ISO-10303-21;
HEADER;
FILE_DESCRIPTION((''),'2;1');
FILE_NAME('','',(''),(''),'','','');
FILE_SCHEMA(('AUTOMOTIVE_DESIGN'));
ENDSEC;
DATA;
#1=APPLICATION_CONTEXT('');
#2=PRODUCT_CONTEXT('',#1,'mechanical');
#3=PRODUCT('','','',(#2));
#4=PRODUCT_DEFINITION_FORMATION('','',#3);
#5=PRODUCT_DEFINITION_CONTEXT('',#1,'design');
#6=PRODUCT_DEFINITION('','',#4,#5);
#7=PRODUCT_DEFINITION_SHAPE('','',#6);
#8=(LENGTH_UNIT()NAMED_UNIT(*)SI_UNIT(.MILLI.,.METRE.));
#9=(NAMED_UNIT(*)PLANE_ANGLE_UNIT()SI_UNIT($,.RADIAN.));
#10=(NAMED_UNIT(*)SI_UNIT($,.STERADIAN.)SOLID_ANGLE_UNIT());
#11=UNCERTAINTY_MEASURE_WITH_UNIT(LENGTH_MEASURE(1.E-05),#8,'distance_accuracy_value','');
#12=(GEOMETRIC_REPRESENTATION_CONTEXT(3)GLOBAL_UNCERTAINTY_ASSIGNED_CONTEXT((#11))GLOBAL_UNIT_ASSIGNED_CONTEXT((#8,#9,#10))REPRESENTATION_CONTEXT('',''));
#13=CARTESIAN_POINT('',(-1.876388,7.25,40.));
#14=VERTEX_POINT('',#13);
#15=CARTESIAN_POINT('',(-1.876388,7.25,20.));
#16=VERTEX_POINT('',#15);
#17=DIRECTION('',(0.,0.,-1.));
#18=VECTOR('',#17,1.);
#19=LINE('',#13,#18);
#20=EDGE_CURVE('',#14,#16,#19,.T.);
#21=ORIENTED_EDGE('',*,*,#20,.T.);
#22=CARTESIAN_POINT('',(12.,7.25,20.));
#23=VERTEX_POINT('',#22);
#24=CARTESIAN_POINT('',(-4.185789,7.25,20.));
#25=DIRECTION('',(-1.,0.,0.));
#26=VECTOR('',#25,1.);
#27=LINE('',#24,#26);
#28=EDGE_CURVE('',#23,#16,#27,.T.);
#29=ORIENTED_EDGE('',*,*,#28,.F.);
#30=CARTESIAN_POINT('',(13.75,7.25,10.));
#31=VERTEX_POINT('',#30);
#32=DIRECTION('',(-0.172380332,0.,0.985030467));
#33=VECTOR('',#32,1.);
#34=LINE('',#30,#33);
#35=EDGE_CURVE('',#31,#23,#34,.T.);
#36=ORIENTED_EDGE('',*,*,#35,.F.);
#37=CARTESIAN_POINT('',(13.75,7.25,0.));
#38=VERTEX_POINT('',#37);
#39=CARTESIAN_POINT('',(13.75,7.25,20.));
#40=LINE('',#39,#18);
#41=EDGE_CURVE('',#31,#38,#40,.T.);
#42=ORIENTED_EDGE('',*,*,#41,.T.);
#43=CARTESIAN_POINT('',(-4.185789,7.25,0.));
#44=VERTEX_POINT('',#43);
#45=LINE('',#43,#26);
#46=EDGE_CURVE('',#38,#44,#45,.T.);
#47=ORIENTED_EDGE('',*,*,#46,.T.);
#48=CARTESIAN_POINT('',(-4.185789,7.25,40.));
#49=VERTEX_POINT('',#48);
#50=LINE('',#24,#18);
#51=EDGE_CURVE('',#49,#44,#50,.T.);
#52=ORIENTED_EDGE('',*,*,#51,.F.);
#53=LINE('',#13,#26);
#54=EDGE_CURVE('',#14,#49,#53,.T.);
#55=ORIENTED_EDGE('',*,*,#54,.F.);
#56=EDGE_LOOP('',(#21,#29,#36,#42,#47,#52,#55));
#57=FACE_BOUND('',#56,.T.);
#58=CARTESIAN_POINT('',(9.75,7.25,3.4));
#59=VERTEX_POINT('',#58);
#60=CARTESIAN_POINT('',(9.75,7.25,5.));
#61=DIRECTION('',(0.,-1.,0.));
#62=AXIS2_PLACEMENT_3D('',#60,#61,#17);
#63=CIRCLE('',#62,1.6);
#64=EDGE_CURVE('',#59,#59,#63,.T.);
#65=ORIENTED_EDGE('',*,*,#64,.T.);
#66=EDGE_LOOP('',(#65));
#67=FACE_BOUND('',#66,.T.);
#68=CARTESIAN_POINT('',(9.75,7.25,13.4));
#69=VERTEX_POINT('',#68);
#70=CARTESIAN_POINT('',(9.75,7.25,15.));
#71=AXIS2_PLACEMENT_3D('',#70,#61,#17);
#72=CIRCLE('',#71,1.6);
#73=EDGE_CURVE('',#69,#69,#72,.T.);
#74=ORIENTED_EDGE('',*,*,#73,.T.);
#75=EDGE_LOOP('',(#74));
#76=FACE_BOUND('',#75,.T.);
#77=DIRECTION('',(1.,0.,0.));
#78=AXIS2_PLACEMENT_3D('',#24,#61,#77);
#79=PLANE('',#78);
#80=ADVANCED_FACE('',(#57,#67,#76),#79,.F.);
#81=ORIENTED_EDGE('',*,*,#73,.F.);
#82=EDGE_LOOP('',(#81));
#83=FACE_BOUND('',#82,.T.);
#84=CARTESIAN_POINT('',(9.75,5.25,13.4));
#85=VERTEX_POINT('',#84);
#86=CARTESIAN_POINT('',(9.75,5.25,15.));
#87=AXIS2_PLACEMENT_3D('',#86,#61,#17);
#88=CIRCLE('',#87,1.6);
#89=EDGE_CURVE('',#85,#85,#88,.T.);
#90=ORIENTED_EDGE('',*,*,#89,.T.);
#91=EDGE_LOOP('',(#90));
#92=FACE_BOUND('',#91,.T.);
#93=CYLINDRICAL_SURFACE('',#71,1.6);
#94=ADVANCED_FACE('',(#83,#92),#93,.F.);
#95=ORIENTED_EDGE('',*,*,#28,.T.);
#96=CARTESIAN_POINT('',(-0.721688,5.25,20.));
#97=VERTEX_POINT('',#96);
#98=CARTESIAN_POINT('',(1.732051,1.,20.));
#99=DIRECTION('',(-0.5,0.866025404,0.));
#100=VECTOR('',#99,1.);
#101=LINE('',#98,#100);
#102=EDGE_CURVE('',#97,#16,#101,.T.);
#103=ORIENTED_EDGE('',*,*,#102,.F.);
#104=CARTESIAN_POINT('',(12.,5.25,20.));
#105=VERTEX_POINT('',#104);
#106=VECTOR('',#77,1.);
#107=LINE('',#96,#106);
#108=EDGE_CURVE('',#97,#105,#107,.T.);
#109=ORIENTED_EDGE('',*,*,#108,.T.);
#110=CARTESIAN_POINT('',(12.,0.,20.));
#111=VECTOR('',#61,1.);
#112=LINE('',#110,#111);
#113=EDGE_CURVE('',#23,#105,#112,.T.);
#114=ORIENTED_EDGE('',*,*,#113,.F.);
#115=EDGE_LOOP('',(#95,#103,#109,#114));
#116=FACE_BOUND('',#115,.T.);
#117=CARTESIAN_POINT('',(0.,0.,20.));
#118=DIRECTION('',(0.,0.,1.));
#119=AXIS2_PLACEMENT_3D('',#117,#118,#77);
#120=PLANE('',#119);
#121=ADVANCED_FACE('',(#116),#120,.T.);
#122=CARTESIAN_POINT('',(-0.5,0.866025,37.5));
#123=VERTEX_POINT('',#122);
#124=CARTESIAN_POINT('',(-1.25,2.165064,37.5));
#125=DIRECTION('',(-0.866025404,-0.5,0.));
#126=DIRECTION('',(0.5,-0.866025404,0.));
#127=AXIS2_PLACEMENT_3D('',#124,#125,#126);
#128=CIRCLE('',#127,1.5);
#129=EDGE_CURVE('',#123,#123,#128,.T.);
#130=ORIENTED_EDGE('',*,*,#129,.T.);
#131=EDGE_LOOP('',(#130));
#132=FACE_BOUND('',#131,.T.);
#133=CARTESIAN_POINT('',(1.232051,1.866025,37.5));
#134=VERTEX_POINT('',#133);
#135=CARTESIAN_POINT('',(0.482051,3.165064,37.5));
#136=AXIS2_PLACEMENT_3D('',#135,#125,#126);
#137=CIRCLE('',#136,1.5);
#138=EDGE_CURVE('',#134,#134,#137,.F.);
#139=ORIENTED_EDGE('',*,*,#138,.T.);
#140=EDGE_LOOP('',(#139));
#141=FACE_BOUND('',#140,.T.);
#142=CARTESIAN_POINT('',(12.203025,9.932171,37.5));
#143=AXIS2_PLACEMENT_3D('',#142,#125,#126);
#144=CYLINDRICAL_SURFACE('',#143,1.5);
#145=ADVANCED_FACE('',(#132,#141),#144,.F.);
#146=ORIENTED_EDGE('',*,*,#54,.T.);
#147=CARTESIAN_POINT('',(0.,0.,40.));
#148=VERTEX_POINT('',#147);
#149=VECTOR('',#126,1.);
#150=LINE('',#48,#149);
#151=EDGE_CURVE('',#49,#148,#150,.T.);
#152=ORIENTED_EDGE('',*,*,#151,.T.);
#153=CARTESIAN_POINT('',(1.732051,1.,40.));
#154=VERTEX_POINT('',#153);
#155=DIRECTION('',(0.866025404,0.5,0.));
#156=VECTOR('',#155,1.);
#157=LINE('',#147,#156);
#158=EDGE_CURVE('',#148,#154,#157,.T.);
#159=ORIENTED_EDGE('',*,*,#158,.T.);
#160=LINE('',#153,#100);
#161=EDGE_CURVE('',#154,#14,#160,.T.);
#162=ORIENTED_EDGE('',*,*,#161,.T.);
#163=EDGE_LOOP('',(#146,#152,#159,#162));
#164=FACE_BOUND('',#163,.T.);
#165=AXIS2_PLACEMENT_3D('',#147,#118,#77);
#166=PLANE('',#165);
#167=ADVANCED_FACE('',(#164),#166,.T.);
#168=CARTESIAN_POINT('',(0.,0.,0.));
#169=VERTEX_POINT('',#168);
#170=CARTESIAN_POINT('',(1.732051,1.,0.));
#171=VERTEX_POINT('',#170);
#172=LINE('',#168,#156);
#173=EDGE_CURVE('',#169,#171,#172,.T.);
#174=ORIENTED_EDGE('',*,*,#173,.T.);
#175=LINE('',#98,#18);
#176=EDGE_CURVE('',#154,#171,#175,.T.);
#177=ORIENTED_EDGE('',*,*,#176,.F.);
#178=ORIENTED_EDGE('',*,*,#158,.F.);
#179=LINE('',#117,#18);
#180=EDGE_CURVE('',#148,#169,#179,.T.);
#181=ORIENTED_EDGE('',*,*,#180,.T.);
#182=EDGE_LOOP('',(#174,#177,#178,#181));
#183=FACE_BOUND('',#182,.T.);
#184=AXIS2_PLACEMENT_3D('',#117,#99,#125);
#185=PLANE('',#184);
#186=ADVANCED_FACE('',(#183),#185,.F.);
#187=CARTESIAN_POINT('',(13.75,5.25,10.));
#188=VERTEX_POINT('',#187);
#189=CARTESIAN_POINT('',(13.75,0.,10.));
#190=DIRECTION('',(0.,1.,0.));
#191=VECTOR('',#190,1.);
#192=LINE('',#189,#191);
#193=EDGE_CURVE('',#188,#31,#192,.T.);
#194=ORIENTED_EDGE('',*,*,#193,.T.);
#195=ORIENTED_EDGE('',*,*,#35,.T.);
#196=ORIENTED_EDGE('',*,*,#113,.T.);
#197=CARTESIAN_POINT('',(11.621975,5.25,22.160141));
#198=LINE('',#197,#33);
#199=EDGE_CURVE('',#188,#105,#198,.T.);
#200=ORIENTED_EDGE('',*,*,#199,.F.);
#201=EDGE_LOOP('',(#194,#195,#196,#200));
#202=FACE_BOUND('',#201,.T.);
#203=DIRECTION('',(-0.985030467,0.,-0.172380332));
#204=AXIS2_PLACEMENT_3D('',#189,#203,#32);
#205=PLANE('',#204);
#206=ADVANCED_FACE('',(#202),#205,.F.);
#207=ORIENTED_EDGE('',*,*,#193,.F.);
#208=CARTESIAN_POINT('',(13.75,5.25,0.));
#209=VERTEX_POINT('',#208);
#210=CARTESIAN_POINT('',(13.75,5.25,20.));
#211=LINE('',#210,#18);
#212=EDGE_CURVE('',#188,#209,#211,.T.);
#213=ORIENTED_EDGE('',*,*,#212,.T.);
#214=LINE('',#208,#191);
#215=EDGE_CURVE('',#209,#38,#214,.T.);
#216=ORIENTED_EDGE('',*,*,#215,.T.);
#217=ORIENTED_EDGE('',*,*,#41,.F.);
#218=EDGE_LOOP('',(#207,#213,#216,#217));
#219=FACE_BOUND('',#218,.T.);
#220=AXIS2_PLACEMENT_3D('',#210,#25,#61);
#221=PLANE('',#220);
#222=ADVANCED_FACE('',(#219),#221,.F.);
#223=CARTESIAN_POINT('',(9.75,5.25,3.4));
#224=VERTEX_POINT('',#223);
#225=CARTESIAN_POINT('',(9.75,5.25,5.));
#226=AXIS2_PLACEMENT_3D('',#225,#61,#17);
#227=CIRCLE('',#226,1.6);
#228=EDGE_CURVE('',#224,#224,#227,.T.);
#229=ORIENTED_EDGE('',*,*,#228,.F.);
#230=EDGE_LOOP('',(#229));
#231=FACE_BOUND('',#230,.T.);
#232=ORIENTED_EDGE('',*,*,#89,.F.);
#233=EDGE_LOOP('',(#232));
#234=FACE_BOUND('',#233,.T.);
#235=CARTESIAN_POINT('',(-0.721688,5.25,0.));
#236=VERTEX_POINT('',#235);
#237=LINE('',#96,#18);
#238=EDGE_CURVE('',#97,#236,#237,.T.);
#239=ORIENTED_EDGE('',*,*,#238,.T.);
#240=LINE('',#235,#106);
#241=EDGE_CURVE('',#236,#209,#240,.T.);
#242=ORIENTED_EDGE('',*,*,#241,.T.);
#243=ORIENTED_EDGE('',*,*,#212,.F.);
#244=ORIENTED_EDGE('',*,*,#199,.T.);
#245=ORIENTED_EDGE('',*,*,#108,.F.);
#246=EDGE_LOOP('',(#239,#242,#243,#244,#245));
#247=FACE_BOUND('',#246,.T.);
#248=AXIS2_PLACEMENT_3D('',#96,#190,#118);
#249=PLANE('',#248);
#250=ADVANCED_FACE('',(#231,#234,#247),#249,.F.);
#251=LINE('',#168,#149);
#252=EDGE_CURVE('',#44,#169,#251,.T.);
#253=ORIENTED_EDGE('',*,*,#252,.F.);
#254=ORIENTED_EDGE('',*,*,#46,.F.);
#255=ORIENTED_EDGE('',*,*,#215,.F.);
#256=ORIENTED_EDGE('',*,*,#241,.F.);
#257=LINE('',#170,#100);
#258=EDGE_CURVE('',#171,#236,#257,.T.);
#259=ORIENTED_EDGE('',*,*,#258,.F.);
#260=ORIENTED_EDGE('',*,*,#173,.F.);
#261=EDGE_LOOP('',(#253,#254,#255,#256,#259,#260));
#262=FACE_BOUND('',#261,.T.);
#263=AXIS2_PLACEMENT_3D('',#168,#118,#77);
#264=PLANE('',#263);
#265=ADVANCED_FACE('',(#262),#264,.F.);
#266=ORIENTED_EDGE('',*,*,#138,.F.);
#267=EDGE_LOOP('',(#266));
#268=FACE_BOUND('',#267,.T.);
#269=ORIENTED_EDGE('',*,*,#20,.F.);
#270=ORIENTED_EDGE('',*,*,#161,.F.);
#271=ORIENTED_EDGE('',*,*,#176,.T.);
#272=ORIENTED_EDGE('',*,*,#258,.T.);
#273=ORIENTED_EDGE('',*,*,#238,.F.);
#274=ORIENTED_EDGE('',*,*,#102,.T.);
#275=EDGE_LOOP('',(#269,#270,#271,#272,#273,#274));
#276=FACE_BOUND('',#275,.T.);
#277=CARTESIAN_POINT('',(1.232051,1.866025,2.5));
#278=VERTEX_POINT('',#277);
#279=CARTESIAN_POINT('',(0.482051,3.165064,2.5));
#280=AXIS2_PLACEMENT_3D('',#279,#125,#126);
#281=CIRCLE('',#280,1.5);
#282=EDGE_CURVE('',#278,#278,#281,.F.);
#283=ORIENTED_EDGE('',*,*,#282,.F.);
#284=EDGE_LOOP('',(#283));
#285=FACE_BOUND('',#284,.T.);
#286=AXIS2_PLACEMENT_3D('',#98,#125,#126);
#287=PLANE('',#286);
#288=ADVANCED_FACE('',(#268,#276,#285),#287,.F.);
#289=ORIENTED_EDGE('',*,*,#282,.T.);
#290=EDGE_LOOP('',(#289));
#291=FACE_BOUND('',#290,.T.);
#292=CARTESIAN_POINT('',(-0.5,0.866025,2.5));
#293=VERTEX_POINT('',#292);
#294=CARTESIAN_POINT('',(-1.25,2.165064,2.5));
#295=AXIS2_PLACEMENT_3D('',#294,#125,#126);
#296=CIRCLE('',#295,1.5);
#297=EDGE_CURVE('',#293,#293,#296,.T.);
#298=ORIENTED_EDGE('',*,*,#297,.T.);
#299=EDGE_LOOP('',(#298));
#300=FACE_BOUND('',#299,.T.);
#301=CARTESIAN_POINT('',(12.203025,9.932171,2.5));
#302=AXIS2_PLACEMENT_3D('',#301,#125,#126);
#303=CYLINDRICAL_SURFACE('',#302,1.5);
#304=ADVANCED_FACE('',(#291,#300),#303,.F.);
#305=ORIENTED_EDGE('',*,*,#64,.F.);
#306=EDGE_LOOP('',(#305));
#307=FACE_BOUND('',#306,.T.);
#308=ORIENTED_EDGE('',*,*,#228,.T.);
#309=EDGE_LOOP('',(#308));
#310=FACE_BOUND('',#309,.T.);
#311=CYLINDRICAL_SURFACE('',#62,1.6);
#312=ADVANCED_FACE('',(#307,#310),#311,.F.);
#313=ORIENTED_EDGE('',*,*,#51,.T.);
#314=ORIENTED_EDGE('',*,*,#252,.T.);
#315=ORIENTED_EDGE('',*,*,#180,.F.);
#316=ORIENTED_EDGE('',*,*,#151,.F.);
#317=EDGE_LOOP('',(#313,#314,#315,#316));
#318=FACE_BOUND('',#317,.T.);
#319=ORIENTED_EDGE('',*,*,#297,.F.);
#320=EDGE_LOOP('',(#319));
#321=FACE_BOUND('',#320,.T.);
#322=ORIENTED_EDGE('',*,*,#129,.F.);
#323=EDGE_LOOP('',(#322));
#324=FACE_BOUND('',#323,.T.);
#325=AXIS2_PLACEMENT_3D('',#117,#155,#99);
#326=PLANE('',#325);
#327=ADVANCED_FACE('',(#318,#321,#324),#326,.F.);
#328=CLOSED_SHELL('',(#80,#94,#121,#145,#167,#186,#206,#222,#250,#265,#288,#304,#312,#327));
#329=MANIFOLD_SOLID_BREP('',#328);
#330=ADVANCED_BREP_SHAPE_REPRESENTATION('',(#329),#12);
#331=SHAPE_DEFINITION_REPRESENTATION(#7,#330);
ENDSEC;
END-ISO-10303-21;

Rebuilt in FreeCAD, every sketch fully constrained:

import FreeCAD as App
import Part
import Sketcher
from FreeCAD import Vector
Q = App.Units.Quantity


def add_polygon(sketch, points):
    """Adds a closed chain of lines whose ends are joined by coincident constraints."""
    first, n = sketch.GeometryCount, len(points)
    for a, b in zip(points, points[1:] + points[:1]):
        sketch.addGeometry(Part.LineSegment(App.Vector(*a, 0), App.Vector(*b, 0)), False)
    for i in range(n):
        sketch.addConstraint(Sketcher.Constraint("Coincident", first + i, 2, first + (i + 1) % n, 1))

doc = App.newDocument("Part")
params = doc.addObject("Spreadsheet::Sheet", "Params")
for row, (alias, value) in enumerate([
    ("sketch1_height", "2 mm"),
    ("sketch1_length", "2 mm"),
    ("pad1_length", "20 mm"),
    ("sketch2_length", "2 mm"),
    ("pad2_length", "20 mm"),
    ("sketch3_diameter", "3 mm"),
    ("sketch4_diameter", "3 mm"),
    ("sketch5_diameter", "3.2 mm"),
    ("sketch6_height", "10 mm"),
    ("sketch6_width", "1.75 mm"),
], start=1):
    params.set(f"A{row}", alias)
    params.set(f"B{row}", "=" + value)
    params.setAlias(f"B{row}", alias)

body = doc.addObject("PartDesign::Body", "Body")

sketch1 = body.newObject("Sketcher::SketchObject", "Sketch")
sketch1.AttachmentSupport = (doc.getObject("XY_Plane"), [""])
sketch1.MapMode = "FlatFace"
add_polygon(sketch1, [(-4.2, 7.2), (0, 0), (1.7, 1), (-0.7, 5.2), (13.8, 5.2), (13.8, 7.2)])
sketch1.addConstraint([
    Sketcher.Constraint("Horizontal", 3),
    Sketcher.Constraint("Vertical", 4),
    Sketcher.Constraint("Horizontal", 5),
    Sketcher.Constraint("Coincident", 0, 2, -1, 1),
    Sketcher.Constraint("Perpendicular", 0, 1),
    Sketcher.Constraint("Perpendicular", 1, 2),
    Sketcher.Constraint("DistanceY", 4, 1, 4, 2, Q("2 mm")),
    Sketcher.Constraint("Angle", 0, Q("-60 deg")),
    Sketcher.Constraint("Distance", 1, Q("2 mm")),
    Sketcher.Constraint("DistanceY", -1, 1, 2, 2, Q("5.25 mm")),
    Sketcher.Constraint("DistanceX", -1, 1, 3, 2, Q("13.75 mm")),
])
sketch1.setExpression("Constraints[12]", "Params.sketch1_height")
sketch1.setExpression("Constraints[14]", "Params.sketch1_length")
pad1 = body.newObject("PartDesign::Pad", "Pad")
pad1.Profile = sketch1
pad1.setExpression("Length", "Params.pad1_length")

sketch2 = body.newObject("Sketcher::SketchObject", "Sketch001")
sketch2.AttachmentSupport = (doc.getObject("XY_Plane"), [""])
sketch2.MapMode = "FlatFace"
sketch2.AttachmentOffset = App.Placement(Vector(0, 0, 20), App.Rotation())
add_polygon(sketch2, [(-4.2, 7.2), (0, 0), (1.7, 1), (-1.9, 7.2)])
sketch2.addConstraint([
    Sketcher.Constraint("Horizontal", 3),
    Sketcher.Constraint("Coincident", 0, 2, -1, 1),
    Sketcher.Constraint("Perpendicular", 0, 1),
    Sketcher.Constraint("Perpendicular", 1, 2),
    Sketcher.Constraint("Angle", 0, Q("-60 deg")),
    Sketcher.Constraint("Distance", 1, Q("2 mm")),
    Sketcher.Constraint("DistanceY", -1, 1, 2, 2, Q("7.25 mm")),
])
sketch2.setExpression("Constraints[9]", "Params.sketch2_length")
pad2 = body.newObject("PartDesign::Pad", "Pad001")
pad2.Profile = sketch2
pad2.setExpression("Length", "Params.pad2_length")

sketch3 = body.newObject("Sketcher::SketchObject", "Sketch002")
sketch3.Placement = App.Placement(Vector(0, 0, 0), App.Rotation(Vector(0, 0, 1), Vector(-0.5, 0.866025404, 0), Vector(-0.866025404, -0.5, 0), "ZXY"))
sketch3.addGeometry(Part.Circle(Vector(2.5, 2.5, 0), Vector(0, 0, 1), 1.5), False)
sketch3.addConstraint([
    Sketcher.Constraint("Diameter", 0, Q("3 mm")),
    Sketcher.Constraint("DistanceX", -1, 1, 0, 3, Q("2.5 mm")),
    Sketcher.Constraint("DistanceY", -1, 1, 0, 3, Q("2.5 mm")),
])
sketch3.setExpression("Constraints[0]", "Params.sketch3_diameter")
pocket1 = body.newObject("PartDesign::Pocket", "Pocket")
pocket1.Profile = sketch3
pocket1.Type = "UpToFirst"

sketch4 = body.newObject("Sketcher::SketchObject", "Sketch003")
sketch4.Placement = App.Placement(Vector(0, 0, 0), App.Rotation(Vector(0, 0, 1), Vector(-0.5, 0.866025404, 0), Vector(-0.866025404, -0.5, 0), "ZXY"))
sketch4.addGeometry(Part.Circle(Vector(37.5, 2.5, 0), Vector(0, 0, 1), 1.5), False)
sketch4.addConstraint([
    Sketcher.Constraint("Diameter", 0, Q("3 mm")),
    Sketcher.Constraint("DistanceX", -1, 1, 0, 3, Q("37.5 mm")),
    Sketcher.Constraint("DistanceY", -1, 1, 0, 3, Q("2.5 mm")),
])
sketch4.setExpression("Constraints[0]", "Params.sketch4_diameter")
pocket2 = body.newObject("PartDesign::Pocket", "Pocket001")
pocket2.Profile = sketch4
pocket2.Type = "UpToFirst"

sketch5 = body.newObject("Sketcher::SketchObject", "Sketch004")
sketch5.AttachmentSupport = (doc.getObject("XZ_Plane"), [""])
sketch5.MapMode = "FlatFace"
sketch5.AttachmentOffset = App.Placement(Vector(0, 0, -5.25), App.Rotation())
sketch5.addGeometry([
    Part.Circle(Vector(9.8, 15, 0), Vector(0, 0, 1), 1.6),
    Part.Circle(Vector(9.8, 5, 0), Vector(0, 0, 1), 1.6),
], False)
sketch5.addConstraint([
    Sketcher.Constraint("Equal", 0, 1),
    Sketcher.Constraint("Vertical", 0, 3, 1, 3),
    Sketcher.Constraint("Diameter", 0, Q("3.2 mm")),
    Sketcher.Constraint("DistanceY", -1, 1, 0, 3, Q("15 mm")),
    Sketcher.Constraint("DistanceY", -1, 1, 1, 3, Q("5 mm")),
    Sketcher.Constraint("DistanceX", -1, 1, 0, 3, Q("9.75 mm")),
])
sketch5.setExpression("Constraints[2]", "Params.sketch5_diameter")
pocket3 = body.newObject("PartDesign::Pocket", "Pocket002")
pocket3.Profile = sketch5
pocket3.Type = "ThroughAll"

sketch6 = body.newObject("Sketcher::SketchObject", "Sketch005")
sketch6.AttachmentSupport = (doc.getObject("XZ_Plane"), [""])
sketch6.MapMode = "FlatFace"
sketch6.AttachmentOffset = App.Placement(Vector(0, 0, -7.25), App.Rotation())
add_polygon(sketch6, [(13.8, 20), (13.8, 10), (12, 20)])
sketch6.addConstraint([
    Sketcher.Constraint("Vertical", 0),
    Sketcher.Constraint("Horizontal", 2),
    Sketcher.Constraint("DistanceY", 0, 2, 0, 1, Q("10 mm")),
    Sketcher.Constraint("DistanceY", -1, 1, 0, 2, Q("10 mm")),
    Sketcher.Constraint("DistanceX", -1, 1, 1, 2, Q("12 mm")),
    Sketcher.Constraint("DistanceX", 2, 1, 2, 2, Q("1.75 mm")),
])
sketch6.setExpression("Constraints[5]", "Params.sketch6_height")
sketch6.setExpression("Constraints[8]", "Params.sketch6_width")
pocket4 = body.newObject("PartDesign::Pocket", "Pocket003")
pocket4.Profile = sketch6
pocket4.Type = "ThroughAll"
pocket4.Reversed = True

doc.recompute()
